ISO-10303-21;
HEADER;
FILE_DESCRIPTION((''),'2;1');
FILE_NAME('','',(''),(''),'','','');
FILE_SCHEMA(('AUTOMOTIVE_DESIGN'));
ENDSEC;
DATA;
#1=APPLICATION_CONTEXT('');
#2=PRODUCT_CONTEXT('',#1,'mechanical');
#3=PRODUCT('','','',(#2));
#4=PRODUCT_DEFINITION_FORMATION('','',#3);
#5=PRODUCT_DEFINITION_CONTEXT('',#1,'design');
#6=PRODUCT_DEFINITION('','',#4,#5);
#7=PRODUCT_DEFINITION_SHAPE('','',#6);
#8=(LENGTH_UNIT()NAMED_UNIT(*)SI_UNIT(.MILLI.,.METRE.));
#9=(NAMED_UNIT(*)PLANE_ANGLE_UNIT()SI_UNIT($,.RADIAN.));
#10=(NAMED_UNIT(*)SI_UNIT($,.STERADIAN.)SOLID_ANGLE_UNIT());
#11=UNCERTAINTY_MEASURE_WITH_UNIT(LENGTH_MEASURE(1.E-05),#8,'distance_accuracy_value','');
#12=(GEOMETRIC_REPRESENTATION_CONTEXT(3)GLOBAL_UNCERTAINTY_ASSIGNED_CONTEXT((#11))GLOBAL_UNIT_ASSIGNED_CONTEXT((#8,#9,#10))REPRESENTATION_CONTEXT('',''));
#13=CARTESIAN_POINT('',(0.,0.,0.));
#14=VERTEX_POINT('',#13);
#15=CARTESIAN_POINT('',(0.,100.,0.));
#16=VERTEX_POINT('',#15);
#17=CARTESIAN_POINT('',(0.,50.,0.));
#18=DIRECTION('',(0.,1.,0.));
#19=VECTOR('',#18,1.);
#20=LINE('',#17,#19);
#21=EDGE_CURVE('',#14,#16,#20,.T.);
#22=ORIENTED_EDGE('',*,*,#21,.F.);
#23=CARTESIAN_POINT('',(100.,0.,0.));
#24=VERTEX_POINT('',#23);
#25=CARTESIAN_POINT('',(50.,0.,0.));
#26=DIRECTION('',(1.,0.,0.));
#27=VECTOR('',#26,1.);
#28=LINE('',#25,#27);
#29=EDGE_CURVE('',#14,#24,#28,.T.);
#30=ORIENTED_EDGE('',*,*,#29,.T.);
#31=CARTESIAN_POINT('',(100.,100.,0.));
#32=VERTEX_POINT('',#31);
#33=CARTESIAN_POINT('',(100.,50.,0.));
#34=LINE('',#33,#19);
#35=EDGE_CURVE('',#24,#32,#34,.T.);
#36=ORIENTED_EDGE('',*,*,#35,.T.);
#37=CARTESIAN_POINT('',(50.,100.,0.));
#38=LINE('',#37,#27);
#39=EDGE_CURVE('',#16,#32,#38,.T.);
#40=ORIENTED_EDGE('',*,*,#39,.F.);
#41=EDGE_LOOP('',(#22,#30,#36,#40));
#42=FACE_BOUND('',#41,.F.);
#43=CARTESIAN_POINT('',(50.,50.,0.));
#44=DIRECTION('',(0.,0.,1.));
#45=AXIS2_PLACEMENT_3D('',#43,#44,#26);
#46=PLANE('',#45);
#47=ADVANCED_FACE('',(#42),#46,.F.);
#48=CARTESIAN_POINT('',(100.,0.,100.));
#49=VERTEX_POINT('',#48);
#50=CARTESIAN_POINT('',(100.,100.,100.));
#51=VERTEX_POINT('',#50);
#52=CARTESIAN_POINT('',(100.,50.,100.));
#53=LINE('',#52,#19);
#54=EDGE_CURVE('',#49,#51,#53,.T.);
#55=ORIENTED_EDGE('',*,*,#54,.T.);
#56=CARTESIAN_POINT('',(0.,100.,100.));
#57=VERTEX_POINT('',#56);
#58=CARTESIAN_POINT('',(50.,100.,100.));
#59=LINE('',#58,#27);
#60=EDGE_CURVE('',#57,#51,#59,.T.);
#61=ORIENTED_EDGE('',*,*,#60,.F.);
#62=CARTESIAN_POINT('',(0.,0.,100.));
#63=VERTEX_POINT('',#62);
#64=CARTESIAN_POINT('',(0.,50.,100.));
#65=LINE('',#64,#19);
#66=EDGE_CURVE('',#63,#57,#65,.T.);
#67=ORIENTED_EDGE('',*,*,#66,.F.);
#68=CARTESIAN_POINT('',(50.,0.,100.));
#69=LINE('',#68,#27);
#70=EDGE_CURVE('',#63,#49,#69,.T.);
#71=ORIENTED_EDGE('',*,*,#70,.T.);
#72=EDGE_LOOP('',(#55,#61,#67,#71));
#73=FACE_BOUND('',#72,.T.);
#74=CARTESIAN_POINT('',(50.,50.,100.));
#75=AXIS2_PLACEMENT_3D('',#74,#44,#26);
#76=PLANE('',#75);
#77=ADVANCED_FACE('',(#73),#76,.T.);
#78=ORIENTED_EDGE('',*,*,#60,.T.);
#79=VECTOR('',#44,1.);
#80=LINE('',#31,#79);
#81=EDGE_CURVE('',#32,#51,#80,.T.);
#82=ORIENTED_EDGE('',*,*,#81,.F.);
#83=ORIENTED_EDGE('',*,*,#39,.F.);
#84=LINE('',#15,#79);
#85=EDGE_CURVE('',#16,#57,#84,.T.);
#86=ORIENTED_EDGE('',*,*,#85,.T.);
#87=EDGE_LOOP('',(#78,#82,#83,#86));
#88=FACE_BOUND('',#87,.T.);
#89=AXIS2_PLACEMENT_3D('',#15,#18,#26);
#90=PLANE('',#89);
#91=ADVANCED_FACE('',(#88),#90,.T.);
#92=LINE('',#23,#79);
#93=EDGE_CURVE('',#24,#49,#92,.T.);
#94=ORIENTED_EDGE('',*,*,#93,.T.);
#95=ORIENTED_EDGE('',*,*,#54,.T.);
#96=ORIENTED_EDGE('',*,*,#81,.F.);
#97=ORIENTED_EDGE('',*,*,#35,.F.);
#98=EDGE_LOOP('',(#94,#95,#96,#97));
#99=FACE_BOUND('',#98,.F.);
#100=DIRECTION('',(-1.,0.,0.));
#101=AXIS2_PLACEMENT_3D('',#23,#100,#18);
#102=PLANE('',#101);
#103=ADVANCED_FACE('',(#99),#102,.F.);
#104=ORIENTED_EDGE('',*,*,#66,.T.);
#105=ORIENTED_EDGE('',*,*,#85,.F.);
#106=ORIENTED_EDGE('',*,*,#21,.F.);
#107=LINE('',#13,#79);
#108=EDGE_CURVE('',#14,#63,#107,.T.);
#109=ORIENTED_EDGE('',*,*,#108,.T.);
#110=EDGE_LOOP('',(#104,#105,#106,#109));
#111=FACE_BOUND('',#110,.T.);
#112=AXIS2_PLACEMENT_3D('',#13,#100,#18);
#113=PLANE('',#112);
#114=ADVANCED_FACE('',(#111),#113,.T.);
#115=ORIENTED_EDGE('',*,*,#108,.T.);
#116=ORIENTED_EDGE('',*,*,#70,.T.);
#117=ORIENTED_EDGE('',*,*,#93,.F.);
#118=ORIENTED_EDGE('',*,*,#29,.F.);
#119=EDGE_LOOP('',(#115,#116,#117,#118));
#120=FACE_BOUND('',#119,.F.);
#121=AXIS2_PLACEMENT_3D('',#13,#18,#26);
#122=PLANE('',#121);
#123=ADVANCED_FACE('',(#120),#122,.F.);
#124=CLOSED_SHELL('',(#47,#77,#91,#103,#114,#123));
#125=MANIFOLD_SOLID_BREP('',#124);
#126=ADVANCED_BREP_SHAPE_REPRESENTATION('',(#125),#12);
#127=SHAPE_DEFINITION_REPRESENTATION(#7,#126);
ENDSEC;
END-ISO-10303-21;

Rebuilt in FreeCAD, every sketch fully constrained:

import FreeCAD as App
import Part
import Sketcher
Q = App.Units.Quantity

doc = App.newDocument("Part")
body = doc.addObject("PartDesign::Body", "Body")

# Sketch on XY plane
sketch1 = body.newObject("Sketcher::SketchObject", "Sketch")
sketch1.AttachmentSupport = (doc.getObject("XY_Plane"), [""])
sketch1.MapMode = "FlatFace"
sketch1.addGeometry(Part.LineSegment(App.Vector(0, 100, 0), App.Vector(0, 0, 0)), False)
sketch1.addGeometry(Part.LineSegment(App.Vector(0, 0, 0), App.Vector(100, 0, 0)), False)
sketch1.addGeometry(Part.LineSegment(App.Vector(100, 0, 0), App.Vector(100, 100, 0)), False)
sketch1.addGeometry(Part.LineSegment(App.Vector(100, 100, 0), App.Vector(0, 100, 0)), False)
sketch1.addConstraint(Sketcher.Constraint("Coincident", 0, 2, 1, 1))
sketch1.addConstraint(Sketcher.Constraint("Coincident", 1, 2, 2, 1))
sketch1.addConstraint(Sketcher.Constraint("Coincident", 2, 2, 3, 1))
sketch1.addConstraint(Sketcher.Constraint("Coincident", 3, 2, 0, 1))
sketch1.addConstraint(Sketcher.Constraint("Vertical", 0))
sketch1.addConstraint(Sketcher.Constraint("Horizontal", 1))
sketch1.addConstraint(Sketcher.Constraint("Vertical", 2))
sketch1.addConstraint(Sketcher.Constraint("Horizontal", 3))
sketch1.addConstraint(Sketcher.Constraint("Coincident", 0, 2, -1, 1))
sketch1.addConstraint(Sketcher.Constraint("Equal", 3, 0))
sketch1.addConstraint(Sketcher.Constraint("DistanceX", 1, 1, 1, 2, Q("100 mm")))
pad1 = body.newObject("PartDesign::Pad", "Pad")
pad1.Profile = sketch1
pad1.Length = 100

doc.recompute()
